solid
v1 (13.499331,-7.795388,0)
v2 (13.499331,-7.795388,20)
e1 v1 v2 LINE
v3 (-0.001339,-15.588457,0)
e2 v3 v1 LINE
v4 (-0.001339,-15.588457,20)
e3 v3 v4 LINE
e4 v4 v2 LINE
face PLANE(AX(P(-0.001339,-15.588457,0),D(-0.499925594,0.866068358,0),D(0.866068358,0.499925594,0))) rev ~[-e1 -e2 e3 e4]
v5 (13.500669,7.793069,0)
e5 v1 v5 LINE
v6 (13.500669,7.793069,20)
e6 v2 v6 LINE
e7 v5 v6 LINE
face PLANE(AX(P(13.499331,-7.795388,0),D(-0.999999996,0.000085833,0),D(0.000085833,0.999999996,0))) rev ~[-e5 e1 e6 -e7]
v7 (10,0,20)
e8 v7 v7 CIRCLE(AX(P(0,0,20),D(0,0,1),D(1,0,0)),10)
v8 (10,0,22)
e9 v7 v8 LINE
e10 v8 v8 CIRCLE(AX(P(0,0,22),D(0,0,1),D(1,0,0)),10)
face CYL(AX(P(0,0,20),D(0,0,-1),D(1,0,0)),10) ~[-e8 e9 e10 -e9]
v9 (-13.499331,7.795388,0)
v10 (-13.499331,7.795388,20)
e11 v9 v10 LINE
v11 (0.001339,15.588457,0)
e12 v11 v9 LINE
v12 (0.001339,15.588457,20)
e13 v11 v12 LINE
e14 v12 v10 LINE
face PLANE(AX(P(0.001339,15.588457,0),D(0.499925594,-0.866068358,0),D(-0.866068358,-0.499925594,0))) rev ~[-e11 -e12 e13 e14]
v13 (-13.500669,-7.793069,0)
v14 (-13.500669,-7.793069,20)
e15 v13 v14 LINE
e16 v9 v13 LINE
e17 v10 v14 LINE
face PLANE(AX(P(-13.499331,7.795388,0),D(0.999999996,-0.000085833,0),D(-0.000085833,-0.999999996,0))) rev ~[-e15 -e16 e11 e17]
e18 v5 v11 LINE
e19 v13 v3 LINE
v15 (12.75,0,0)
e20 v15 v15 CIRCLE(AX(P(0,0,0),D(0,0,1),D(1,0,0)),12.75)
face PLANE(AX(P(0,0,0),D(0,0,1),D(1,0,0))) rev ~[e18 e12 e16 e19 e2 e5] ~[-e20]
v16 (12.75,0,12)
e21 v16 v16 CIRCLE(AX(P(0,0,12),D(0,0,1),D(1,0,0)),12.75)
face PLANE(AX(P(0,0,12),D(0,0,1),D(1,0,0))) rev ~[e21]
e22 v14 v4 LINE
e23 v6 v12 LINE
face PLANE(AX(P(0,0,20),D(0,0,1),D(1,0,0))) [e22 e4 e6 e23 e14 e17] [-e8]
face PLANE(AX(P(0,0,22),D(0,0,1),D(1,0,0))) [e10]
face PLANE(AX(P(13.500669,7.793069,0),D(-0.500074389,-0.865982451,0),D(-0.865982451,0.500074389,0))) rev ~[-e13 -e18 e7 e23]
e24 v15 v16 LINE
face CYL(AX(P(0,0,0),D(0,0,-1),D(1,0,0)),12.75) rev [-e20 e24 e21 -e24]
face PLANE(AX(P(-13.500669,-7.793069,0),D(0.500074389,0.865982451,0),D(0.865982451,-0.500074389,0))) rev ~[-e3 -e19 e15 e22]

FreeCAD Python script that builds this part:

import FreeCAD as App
import Part
import Sketcher
from FreeCAD import Vector
Q = App.Units.Quantity

doc = App.newDocument("Part")
body = doc.addObject("PartDesign::Body", "Body")

sketch1 = body.newObject("Sketcher::SketchObject", "Sketch")
sketch1.AttachmentSupport = (doc.getObject("XY_Plane"), [""])
sketch1.MapMode = "FlatFace"
sketch1.addGeometry([
    Part.LineSegment(Vector(0.001339, 15.588457, 0), Vector(-13.499331, 7.795388, 0)),
    Part.LineSegment(Vector(-13.499331, 7.795388, 0), Vector(-13.500669, -7.793069, 0)),
    Part.LineSegment(Vector(-13.500669, -7.793069, 0), Vector(-0.001339, -15.588457, 0)),
    Part.LineSegment(Vector(-0.001339, -15.588457, 0), Vector(13.499331, -7.795388, 0)),
    Part.LineSegment(Vector(13.499331, -7.795388, 0), Vector(13.500669, 7.793069, 0)),
    Part.LineSegment(Vector(13.500669, 7.793069, 0), Vector(0.001339, 15.588457, 0)),
], False)
sketch1.addConstraint([
    Sketcher.Constraint("Coincident", 0, 2, 1, 1),
    Sketcher.Constraint("Coincident", 1, 2, 2, 1),
    Sketcher.Constraint("Coincident", 2, 2, 3, 1),
    Sketcher.Constraint("Coincident", 3, 2, 4, 1),
    Sketcher.Constraint("Coincident", 4, 2, 5, 1),
    Sketcher.Constraint("Coincident", 5, 2, 0, 1),
    Sketcher.Constraint("Symmetric", 0, 2, 3, 2, -1, 1),
    Sketcher.Constraint("Symmetric", 1, 2, 4, 2, -1, 1),
    Sketcher.Constraint("Symmetric", 2, 2, 5, 2, -1, 1),
    Sketcher.Constraint("Equal", 0, 1),
    Sketcher.Constraint("Equal", 1, 2),
    Sketcher.Constraint("DistanceX", 1, 2, 3, 2, Q("27 mm")),
    Sketcher.Constraint("DistanceX", 0, 2, -1, 1, Q("13.499331 mm")),
    Sketcher.Constraint("DistanceY", 1, 2, -1, 1, Q("7.793069 mm")),
    Sketcher.Constraint("DistanceX", 2, 2, -1, 1, Q("0.001339 mm")),
])
pad1 = body.newObject("PartDesign::Pad", "Pad")
pad1.Profile = sketch1
pad1.Length = 20

sketch2 = body.newObject("Sketcher::SketchObject", "Sketch001")
sketch2.AttachmentSupport = (doc.getObject("XY_Plane"), [""])
sketch2.MapMode = "FlatFace"
sketch2.addGeometry(Part.Circle(Vector(0, 0, 0), Vector(0, 0, 1), 12.75), False)
sketch2.addConstraint([
    Sketcher.Constraint("Coincident", 0, 3, -1, 1),
    Sketcher.Constraint("Diameter", 0, Q("25.5 mm")),
])
pocket1 = body.newObject("PartDesign::Pocket", "Pocket")
pocket1.Profile = sketch2
pocket1.Length = 12
pocket1.Reversed = True

sketch3 = body.newObject("Sketcher::SketchObject", "Sketch002")
sketch3.AttachmentSupport = (doc.getObject("XY_Plane"), [""])
sketch3.MapMode = "FlatFace"
sketch3.AttachmentOffset = App.Placement(Vector(0, 0, 20), App.Rotation())
sketch3.addGeometry(Part.Circle(Vector(0, 0, 0), Vector(0, 0, 1), 10), False)
sketch3.addConstraint([
    Sketcher.Constraint("Coincident", 0, 3, -1, 1),
    Sketcher.Constraint("Diameter", 0, Q("20 mm")),
])
pad2 = body.newObject("PartDesign::Pad", "Pad001")
pad2.Profile = sketch3
pad2.Length = 2

doc.recompute()
